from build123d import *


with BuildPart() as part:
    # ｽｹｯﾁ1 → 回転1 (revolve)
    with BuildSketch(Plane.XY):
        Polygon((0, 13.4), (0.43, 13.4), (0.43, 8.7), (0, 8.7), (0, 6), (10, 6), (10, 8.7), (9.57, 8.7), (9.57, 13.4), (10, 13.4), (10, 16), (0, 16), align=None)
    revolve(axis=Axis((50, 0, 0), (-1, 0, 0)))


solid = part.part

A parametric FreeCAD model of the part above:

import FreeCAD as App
import Part
import Sketcher
from FreeCAD import Vector
Q = App.Units.Quantity

doc = App.newDocument("Part")
body = doc.addObject("PartDesign::Body", "Body")

sketch1 = doc.addObject("Sketcher::SketchObject", "Sketch")
body.addObject(sketch1)
sketch1.AttachmentSupport = (doc.XY_Plane, [""])
sketch1.MapMode = "FlatFace"
sketch1.addGeometry([
    Part.LineSegment(Vector(0, 13.4, 0), Vector(0.43, 13.4, 0)),
    Part.LineSegment(Vector(0.43, 13.4, 0), Vector(0.43, 8.7, 0)),
    Part.LineSegment(Vector(0.43, 8.7, 0), Vector(0, 8.7, 0)),
    Part.LineSegment(Vector(0, 8.7, 0), Vector(0, 6, 0)),
    Part.LineSegment(Vector(0, 6, 0), Vector(10, 6, 0)),
    Part.LineSegment(Vector(10, 6, 0), Vector(10, 8.7, 0)),
    Part.LineSegment(Vector(10, 8.7, 0), Vector(9.57, 8.7, 0)),
    Part.LineSegment(Vector(9.57, 8.7, 0), Vector(9.57, 13.4, 0)),
    Part.LineSegment(Vector(9.57, 13.4, 0), Vector(10, 13.4, 0)),
    Part.LineSegment(Vector(10, 13.4, 0), Vector(10, 16, 0)),
    Part.LineSegment(Vector(10, 16, 0), Vector(0, 16, 0)),
    Part.LineSegment(Vector(0, 16, 0), Vector(0, 13.4, 0)),
], False)
sketch1.addConstraint([
    Sketcher.Constraint("Coincident", 0, 2, 1, 1),
    Sketcher.Constraint("Coincident", 1, 2, 2, 1),
    Sketcher.Constraint("Coincident", 2, 2, 3, 1),
    Sketcher.Constraint("Coincident", 3, 2, 4, 1),
    Sketcher.Constraint("Coincident", 4, 2, 5, 1),
    Sketcher.Constraint("Coincident", 5, 2, 6, 1),
    Sketcher.Constraint("Coincident", 6, 2, 7, 1),
    Sketcher.Constraint("Coincident", 7, 2, 8, 1),
    Sketcher.Constraint("Coincident", 8, 2, 9, 1),
    Sketcher.Constraint("Coincident", 9, 2, 10, 1),
    Sketcher.Constraint("Coincident", 10, 2, 11, 1),
    Sketcher.Constraint("Coincident", 11, 2, 0, 1),
    Sketcher.Constraint("Horizontal", 0),
    Sketcher.Constraint("Vertical", 1),
    Sketcher.Constraint("Horizontal", 2),
    Sketcher.Constraint("Vertical", 3),
    Sketcher.Constraint("Horizontal", 4),
    Sketcher.Constraint("Vertical", 5),
    Sketcher.Constraint("Horizontal", 6),
    Sketcher.Constraint("Vertical", 7),
    Sketcher.Constraint("Horizontal", 8),
    Sketcher.Constraint("Vertical", 9),
    Sketcher.Constraint("Horizontal", 10),
    Sketcher.Constraint("Vertical", 11),
    Sketcher.Constraint("PointOnObject", 2, 2, -2),
    Sketcher.Constraint("PointOnObject", 10, 2, -2),
    Sketcher.Constraint("Horizontal", 2, 2, 5, 2),
    Sketcher.Constraint("Horizontal", 0, 2, 7, 2),
    Sketcher.Constraint("Vertical", 5, 2, 8, 2),
    Sketcher.Constraint("Equal", 2, 6),
    Sketcher.Constraint("DistanceX", 4, 1, 4, 2, Q("10 mm")),
    Sketcher.Constraint("DistanceY", 1, 2, 1, 1, Q("4.7 mm")),
    Sketcher.Constraint("DistanceY", 3, 2, 3, 1, Q("2.7 mm")),
    Sketcher.Constraint("DistanceY", 9, 1, 9, 2, Q("2.6 mm")),
    Sketcher.Constraint("DistanceY", -1, 1, 3, 2, Q("6 mm")),
    Sketcher.Constraint("DistanceX", 0, 1, 0, 2, Q("0.43 mm")),
])
revolution = doc.addObject("PartDesign::Revolution", "Revolution")
body.addObject(revolution)
revolution.Profile = sketch1
revolution.ReferenceAxis = (sketch1, ["H_Axis"])
revolution.Angle = 360

doc.recompute()
